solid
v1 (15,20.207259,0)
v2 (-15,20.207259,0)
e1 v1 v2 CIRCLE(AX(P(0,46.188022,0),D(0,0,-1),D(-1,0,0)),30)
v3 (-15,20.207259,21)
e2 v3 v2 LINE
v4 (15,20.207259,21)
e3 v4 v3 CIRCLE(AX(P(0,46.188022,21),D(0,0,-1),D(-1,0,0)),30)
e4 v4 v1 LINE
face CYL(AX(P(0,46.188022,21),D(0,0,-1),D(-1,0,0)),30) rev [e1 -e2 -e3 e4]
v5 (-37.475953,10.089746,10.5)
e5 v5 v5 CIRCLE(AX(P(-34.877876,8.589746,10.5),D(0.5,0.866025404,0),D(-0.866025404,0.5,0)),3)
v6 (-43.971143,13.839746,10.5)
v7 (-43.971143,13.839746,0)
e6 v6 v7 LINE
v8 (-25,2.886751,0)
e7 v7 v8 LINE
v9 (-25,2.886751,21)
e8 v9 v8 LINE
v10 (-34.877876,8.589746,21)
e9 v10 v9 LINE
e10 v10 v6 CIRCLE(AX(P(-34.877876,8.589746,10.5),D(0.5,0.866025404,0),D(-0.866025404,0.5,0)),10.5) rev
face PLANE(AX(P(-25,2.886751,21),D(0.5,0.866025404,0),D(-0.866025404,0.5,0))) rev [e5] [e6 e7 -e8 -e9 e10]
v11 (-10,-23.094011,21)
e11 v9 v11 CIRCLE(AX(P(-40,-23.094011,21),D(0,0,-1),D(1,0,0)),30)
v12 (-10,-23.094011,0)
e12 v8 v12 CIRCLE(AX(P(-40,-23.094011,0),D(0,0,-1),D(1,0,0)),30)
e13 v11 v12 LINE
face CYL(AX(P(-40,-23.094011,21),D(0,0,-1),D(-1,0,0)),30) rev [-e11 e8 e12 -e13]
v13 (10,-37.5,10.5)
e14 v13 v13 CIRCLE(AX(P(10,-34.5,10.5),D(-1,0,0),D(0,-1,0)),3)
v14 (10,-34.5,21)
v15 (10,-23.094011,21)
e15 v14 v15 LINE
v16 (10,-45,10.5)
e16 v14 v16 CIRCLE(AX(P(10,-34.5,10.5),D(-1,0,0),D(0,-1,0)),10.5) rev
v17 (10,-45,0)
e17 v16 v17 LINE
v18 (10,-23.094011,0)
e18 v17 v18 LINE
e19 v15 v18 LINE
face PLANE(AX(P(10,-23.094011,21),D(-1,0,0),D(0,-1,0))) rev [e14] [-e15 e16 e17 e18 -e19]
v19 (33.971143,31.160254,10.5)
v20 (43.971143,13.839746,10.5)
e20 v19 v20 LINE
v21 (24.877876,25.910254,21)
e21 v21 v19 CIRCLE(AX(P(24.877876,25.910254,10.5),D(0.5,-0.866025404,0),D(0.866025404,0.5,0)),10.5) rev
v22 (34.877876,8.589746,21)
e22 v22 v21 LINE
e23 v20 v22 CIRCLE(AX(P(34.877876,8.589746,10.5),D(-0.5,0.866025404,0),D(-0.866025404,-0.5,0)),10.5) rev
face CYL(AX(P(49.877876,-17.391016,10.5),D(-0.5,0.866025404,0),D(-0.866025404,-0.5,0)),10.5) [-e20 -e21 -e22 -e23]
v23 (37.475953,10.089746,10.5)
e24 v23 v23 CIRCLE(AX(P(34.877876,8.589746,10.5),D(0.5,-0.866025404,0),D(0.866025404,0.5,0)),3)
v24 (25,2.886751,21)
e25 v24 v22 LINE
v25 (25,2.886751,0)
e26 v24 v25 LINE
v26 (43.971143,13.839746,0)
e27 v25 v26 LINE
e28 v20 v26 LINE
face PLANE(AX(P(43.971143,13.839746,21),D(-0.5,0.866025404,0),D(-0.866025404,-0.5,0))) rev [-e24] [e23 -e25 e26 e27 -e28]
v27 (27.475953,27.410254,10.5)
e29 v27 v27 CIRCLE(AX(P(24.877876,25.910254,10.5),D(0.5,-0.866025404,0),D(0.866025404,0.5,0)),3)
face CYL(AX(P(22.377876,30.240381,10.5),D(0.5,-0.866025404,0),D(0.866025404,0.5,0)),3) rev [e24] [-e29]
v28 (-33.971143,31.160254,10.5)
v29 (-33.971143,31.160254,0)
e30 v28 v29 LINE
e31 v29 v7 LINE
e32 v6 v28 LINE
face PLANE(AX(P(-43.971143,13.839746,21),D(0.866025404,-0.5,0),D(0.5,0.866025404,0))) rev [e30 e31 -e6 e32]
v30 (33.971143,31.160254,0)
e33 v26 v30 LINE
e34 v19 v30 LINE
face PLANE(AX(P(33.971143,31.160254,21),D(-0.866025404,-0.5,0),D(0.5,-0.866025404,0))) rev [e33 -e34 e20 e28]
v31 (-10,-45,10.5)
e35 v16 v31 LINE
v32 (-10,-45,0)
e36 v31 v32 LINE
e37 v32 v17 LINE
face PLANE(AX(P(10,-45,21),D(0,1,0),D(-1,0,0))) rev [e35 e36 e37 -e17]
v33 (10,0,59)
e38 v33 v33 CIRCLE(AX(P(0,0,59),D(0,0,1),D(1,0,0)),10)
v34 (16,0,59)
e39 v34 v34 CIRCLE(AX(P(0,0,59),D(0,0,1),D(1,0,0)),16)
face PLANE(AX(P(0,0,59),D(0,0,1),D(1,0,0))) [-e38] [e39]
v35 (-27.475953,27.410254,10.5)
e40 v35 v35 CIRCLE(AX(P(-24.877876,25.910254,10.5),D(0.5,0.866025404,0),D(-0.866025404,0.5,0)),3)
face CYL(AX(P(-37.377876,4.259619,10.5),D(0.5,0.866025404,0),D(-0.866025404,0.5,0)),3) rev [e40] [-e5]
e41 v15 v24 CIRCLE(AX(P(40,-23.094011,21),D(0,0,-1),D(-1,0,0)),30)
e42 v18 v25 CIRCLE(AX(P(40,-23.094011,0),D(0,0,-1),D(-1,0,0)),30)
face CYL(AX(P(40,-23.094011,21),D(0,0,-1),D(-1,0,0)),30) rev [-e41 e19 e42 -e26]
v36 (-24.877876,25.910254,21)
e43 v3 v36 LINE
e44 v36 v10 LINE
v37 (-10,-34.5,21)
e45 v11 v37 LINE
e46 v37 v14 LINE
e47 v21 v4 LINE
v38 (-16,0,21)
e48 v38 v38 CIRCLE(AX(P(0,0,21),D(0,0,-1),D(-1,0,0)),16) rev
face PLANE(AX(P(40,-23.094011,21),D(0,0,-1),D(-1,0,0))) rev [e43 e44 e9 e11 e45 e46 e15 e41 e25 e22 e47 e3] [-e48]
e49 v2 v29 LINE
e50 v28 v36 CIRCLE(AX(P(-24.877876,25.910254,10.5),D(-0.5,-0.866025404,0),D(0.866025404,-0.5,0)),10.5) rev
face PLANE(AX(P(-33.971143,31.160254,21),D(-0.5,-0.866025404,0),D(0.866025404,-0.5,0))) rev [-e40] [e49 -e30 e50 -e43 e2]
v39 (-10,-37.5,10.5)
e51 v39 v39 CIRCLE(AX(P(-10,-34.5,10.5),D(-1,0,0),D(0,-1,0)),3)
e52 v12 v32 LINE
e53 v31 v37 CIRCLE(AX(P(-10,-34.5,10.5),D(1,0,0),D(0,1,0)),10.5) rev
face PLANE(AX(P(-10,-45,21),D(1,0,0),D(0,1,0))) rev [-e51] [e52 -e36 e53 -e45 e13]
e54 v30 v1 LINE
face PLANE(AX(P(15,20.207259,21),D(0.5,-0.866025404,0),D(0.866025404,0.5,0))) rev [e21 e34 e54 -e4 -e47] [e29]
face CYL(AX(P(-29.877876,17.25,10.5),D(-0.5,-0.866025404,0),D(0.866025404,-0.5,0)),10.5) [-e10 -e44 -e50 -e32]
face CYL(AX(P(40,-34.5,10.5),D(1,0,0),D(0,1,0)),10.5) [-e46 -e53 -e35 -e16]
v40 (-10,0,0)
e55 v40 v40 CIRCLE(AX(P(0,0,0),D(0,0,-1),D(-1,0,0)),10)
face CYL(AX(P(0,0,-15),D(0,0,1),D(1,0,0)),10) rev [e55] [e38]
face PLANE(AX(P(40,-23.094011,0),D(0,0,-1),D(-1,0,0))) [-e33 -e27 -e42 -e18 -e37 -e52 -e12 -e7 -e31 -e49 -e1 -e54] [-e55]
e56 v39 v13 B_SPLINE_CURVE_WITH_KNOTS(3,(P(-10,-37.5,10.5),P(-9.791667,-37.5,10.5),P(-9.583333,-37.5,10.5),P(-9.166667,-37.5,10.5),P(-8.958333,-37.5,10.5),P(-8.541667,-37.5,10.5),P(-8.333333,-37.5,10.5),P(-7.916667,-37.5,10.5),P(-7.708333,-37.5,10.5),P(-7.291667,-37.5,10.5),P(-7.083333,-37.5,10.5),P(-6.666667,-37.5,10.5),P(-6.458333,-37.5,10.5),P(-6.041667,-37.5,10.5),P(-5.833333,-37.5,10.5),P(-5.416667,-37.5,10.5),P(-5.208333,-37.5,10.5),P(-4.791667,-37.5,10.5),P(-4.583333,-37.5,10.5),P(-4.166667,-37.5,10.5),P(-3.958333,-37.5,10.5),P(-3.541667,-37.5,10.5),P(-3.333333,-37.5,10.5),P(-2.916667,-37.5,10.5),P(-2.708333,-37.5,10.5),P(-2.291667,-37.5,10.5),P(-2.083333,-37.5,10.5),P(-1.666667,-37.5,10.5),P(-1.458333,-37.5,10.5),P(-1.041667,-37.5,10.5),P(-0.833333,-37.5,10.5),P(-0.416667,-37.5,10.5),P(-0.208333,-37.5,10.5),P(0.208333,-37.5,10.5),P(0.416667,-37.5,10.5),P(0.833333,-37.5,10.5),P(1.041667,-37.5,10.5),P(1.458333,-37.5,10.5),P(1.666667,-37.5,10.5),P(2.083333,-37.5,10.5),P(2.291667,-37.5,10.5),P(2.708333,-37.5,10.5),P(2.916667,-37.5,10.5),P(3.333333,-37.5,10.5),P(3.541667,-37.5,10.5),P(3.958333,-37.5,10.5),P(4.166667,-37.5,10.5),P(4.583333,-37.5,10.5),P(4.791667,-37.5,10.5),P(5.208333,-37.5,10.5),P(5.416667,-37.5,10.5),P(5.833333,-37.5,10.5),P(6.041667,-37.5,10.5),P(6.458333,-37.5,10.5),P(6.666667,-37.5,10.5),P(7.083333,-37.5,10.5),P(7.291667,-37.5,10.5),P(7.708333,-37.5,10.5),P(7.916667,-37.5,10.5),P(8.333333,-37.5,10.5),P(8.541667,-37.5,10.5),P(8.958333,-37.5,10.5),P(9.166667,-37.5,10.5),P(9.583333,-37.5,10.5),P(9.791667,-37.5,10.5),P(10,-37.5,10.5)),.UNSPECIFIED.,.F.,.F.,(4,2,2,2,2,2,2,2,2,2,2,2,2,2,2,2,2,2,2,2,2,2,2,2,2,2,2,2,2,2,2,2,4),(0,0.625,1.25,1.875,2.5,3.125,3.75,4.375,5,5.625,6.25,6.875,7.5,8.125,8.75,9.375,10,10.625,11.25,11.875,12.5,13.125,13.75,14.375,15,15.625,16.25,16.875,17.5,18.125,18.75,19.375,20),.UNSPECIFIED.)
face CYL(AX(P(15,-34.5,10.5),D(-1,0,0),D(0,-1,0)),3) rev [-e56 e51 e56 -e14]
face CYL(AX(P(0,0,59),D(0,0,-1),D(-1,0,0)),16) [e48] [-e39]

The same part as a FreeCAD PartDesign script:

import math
import FreeCAD as App
import Part
import Sketcher
from FreeCAD import Vector
Q = App.Units.Quantity


def edges_at(feature, points):
    """Names of the edges that pass closest to the given points."""
    edges = feature.Shape.Edges
    near = lambda p: min(range(len(edges)), key=lambda i: edges[i].distToShape(Part.Vertex(*p))[0])
    return sorted({f"Edge{near(p) + 1}" for p in points})

doc = App.newDocument("Part")
body = doc.addObject("PartDesign::Body", "Body")

# Sketch on XY plane
sketch1 = body.newObject("Sketcher::SketchObject", "Sketch")
sketch1.AttachmentSupport = (doc.getObject("XY_Plane"), [""])
sketch1.MapMode = "FlatFace"
sketch1.addGeometry([
    Part.LineSegment(Vector(34, 31, 0), Vector(15, 20, 0)),  # 0
    Part.ArcOfCircle(Part.Circle(Vector(0, 46, 0), Vector(0, 0, 1), 30), math.radians(-120), math.radians(-60)),  # 1
    Part.LineSegment(Vector(-15, 20, 0), Vector(-34, 31, 0)),  # 2
    Part.LineSegment(Vector(-34, 31, 0), Vector(-44, 14, 0)),  # 3
    Part.LineSegment(Vector(-44, 14, 0), Vector(-25, 3, 0)),  # 4
    Part.ArcOfCircle(Part.Circle(Vector(-40, -23, 0), Vector(0, 0, 1), 30), math.radians(0), math.radians(60)),  # 5
    Part.LineSegment(Vector(-10, -23, 0), Vector(-10, -45, 0)),  # 6
    Part.LineSegment(Vector(-10, -45, 0), Vector(10, -45, 0)),  # 7
    Part.LineSegment(Vector(10, -45, 0), Vector(10, -23, 0)),  # 8
    Part.ArcOfCircle(Part.Circle(Vector(40, -23, 0), Vector(0, 0, 1), 30), math.radians(120), math.radians(180)),  # 9
    Part.LineSegment(Vector(25, 3, 0), Vector(44, 14, 0)),  # 10
    Part.LineSegment(Vector(44, 14, 0), Vector(34, 31, 0)),  # 11
], False)
sketch1.addConstraint([
    Sketcher.Constraint("Tangent", 0, 2, 1, 2),
    Sketcher.Constraint("Tangent", 1, 1, 2, 1),
    Sketcher.Constraint("Coincident", 2, 2, 3, 1),
    Sketcher.Constraint("Coincident", 3, 2, 4, 1),
    Sketcher.Constraint("Tangent", 4, 2, 5, 2),
    Sketcher.Constraint("Tangent", 5, 1, 6, 1),
    Sketcher.Constraint("Coincident", 6, 2, 7, 1),
    Sketcher.Constraint("Coincident", 7, 2, 8, 1),
    Sketcher.Constraint("Tangent", 8, 2, 9, 2),
    Sketcher.Constraint("Tangent", 9, 1, 10, 1),
    Sketcher.Constraint("Coincident", 10, 2, 11, 1),
    Sketcher.Constraint("Coincident", 11, 2, 0, 1),
    Sketcher.Constraint("Vertical", 6),
    Sketcher.Constraint("Horizontal", 7),
    Sketcher.Constraint("Vertical", 8),
    Sketcher.Constraint("Equal", 1, 5),
    Sketcher.Constraint("Equal", 5, 9),
    Sketcher.Constraint("Symmetric", 5, 3, 9, 3, -2),
    Sketcher.Constraint("Symmetric", 0, 2, 1, 1, -2),
    Sketcher.Constraint("Symmetric", 3, 2, 10, 2, -2),
    Sketcher.Constraint("Perpendicular", 2, 3),
    Sketcher.Constraint("Perpendicular", 3, 4),
    Sketcher.Constraint("Perpendicular", 10, 11),
    Sketcher.Constraint("Equal", 2, 4),
    Sketcher.Constraint("Radius", 1, Q("30 mm")),
    Sketcher.Constraint("DistanceX", 7, 1, 7, 2, Q("20 mm")),
    Sketcher.Constraint("Angle", 0, Q("-150 deg")),
    Sketcher.Constraint("DistanceY", 6, 2, -1, 1, Q("45 mm")),
    Sketcher.Constraint("DistanceY", 6, 2, 6, 1, Q("21.905989 mm")),
    Sketcher.Constraint("Distance", 0, Q("21.905989 mm")),
])
pad1 = body.newObject("PartDesign::Pad", "Pad")
pad1.Profile = sketch1
pad1.Length = 21
doc.recompute()

fillet = body.newObject("PartDesign::Fillet", "Fillet")
fillet.Base = (pad1, edges_at(pad1, [(38.971, 22.5, 21), (-38.971, 22.5, 21), (0, -45, 21)]))
fillet.Radius = 10.5

# Sketch on XY plane
sketch2 = body.newObject("Sketcher::SketchObject", "Sketch001")
sketch2.AttachmentSupport = (doc.getObject("XY_Plane"), [""])
sketch2.MapMode = "FlatFace"
sketch2.AttachmentOffset = App.Placement(Vector(0, 0, 21), App.Rotation())
sketch2.addGeometry(Part.Circle(Vector(0, 0, 0), Vector(0, 0, 1), 16), False)
sketch2.addConstraint([
    Sketcher.Constraint("Coincident", 0, 3, -1, 1),
    Sketcher.Constraint("Diameter", 0, Q("32 mm")),
])
pad2 = body.newObject("PartDesign::Pad", "Pad001")
pad2.Profile = sketch2
pad2.Length = 38

# Sketch on XY plane
sketch3 = body.newObject("Sketcher::SketchObject", "Sketch002")
sketch3.AttachmentSupport = (doc.getObject("XY_Plane"), [""])
sketch3.MapMode = "FlatFace"
sketch3.AttachmentOffset = App.Placement(Vector(0, 0, 59), App.Rotation())
sketch3.addGeometry(Part.Circle(Vector(0, 0, 0), Vector(0, 0, 1), 10), False)
sketch3.addConstraint([
    Sketcher.Constraint("Coincident", 0, 3, -1, 1),
    Sketcher.Constraint("Diameter", 0, Q("20 mm")),
])
pocket1 = body.newObject("PartDesign::Pocket", "Pocket")
pocket1.Profile = sketch3
pocket1.Length = 74

# Sketch on an angled plane
sketch4 = body.newObject("Sketcher::SketchObject", "Sketch003")
sketch4.Placement = App.Placement(Vector(5, 8.660254, 0), App.Rotation(Vector(0.866025404, -0.5, 0), Vector(0, 0, -1), Vector(0.5, 0.866025404, 0), "ZXY"))
sketch4.addGeometry(Part.Circle(Vector(-34.5, -10.5, 0), Vector(0, 0, 1), 3), False)
sketch4.addConstraint([
    Sketcher.Constraint("Diameter", 0, Q("6 mm")),
    Sketcher.Constraint("DistanceX", 0, 3, -1, 1, Q("34.5 mm")),
    Sketcher.Constraint("DistanceY", 0, 3, -1, 1, Q("10.5 mm")),
])
pocket2 = body.newObject("PartDesign::Pocket", "Pocket001")
pocket2.Profile = sketch4
pocket2.Length = 25
doc.recompute()

polarpattern = body.newObject("PartDesign::PolarPattern", "PolarPattern")
polarpattern.Originals = [pocket2]
polarpattern.Axis = (doc.getObject("Z_Axis"), [""])
polarpattern.Angle = 360
polarpattern.Occurrences = 3
body.Tip = polarpattern

doc.recompute()
